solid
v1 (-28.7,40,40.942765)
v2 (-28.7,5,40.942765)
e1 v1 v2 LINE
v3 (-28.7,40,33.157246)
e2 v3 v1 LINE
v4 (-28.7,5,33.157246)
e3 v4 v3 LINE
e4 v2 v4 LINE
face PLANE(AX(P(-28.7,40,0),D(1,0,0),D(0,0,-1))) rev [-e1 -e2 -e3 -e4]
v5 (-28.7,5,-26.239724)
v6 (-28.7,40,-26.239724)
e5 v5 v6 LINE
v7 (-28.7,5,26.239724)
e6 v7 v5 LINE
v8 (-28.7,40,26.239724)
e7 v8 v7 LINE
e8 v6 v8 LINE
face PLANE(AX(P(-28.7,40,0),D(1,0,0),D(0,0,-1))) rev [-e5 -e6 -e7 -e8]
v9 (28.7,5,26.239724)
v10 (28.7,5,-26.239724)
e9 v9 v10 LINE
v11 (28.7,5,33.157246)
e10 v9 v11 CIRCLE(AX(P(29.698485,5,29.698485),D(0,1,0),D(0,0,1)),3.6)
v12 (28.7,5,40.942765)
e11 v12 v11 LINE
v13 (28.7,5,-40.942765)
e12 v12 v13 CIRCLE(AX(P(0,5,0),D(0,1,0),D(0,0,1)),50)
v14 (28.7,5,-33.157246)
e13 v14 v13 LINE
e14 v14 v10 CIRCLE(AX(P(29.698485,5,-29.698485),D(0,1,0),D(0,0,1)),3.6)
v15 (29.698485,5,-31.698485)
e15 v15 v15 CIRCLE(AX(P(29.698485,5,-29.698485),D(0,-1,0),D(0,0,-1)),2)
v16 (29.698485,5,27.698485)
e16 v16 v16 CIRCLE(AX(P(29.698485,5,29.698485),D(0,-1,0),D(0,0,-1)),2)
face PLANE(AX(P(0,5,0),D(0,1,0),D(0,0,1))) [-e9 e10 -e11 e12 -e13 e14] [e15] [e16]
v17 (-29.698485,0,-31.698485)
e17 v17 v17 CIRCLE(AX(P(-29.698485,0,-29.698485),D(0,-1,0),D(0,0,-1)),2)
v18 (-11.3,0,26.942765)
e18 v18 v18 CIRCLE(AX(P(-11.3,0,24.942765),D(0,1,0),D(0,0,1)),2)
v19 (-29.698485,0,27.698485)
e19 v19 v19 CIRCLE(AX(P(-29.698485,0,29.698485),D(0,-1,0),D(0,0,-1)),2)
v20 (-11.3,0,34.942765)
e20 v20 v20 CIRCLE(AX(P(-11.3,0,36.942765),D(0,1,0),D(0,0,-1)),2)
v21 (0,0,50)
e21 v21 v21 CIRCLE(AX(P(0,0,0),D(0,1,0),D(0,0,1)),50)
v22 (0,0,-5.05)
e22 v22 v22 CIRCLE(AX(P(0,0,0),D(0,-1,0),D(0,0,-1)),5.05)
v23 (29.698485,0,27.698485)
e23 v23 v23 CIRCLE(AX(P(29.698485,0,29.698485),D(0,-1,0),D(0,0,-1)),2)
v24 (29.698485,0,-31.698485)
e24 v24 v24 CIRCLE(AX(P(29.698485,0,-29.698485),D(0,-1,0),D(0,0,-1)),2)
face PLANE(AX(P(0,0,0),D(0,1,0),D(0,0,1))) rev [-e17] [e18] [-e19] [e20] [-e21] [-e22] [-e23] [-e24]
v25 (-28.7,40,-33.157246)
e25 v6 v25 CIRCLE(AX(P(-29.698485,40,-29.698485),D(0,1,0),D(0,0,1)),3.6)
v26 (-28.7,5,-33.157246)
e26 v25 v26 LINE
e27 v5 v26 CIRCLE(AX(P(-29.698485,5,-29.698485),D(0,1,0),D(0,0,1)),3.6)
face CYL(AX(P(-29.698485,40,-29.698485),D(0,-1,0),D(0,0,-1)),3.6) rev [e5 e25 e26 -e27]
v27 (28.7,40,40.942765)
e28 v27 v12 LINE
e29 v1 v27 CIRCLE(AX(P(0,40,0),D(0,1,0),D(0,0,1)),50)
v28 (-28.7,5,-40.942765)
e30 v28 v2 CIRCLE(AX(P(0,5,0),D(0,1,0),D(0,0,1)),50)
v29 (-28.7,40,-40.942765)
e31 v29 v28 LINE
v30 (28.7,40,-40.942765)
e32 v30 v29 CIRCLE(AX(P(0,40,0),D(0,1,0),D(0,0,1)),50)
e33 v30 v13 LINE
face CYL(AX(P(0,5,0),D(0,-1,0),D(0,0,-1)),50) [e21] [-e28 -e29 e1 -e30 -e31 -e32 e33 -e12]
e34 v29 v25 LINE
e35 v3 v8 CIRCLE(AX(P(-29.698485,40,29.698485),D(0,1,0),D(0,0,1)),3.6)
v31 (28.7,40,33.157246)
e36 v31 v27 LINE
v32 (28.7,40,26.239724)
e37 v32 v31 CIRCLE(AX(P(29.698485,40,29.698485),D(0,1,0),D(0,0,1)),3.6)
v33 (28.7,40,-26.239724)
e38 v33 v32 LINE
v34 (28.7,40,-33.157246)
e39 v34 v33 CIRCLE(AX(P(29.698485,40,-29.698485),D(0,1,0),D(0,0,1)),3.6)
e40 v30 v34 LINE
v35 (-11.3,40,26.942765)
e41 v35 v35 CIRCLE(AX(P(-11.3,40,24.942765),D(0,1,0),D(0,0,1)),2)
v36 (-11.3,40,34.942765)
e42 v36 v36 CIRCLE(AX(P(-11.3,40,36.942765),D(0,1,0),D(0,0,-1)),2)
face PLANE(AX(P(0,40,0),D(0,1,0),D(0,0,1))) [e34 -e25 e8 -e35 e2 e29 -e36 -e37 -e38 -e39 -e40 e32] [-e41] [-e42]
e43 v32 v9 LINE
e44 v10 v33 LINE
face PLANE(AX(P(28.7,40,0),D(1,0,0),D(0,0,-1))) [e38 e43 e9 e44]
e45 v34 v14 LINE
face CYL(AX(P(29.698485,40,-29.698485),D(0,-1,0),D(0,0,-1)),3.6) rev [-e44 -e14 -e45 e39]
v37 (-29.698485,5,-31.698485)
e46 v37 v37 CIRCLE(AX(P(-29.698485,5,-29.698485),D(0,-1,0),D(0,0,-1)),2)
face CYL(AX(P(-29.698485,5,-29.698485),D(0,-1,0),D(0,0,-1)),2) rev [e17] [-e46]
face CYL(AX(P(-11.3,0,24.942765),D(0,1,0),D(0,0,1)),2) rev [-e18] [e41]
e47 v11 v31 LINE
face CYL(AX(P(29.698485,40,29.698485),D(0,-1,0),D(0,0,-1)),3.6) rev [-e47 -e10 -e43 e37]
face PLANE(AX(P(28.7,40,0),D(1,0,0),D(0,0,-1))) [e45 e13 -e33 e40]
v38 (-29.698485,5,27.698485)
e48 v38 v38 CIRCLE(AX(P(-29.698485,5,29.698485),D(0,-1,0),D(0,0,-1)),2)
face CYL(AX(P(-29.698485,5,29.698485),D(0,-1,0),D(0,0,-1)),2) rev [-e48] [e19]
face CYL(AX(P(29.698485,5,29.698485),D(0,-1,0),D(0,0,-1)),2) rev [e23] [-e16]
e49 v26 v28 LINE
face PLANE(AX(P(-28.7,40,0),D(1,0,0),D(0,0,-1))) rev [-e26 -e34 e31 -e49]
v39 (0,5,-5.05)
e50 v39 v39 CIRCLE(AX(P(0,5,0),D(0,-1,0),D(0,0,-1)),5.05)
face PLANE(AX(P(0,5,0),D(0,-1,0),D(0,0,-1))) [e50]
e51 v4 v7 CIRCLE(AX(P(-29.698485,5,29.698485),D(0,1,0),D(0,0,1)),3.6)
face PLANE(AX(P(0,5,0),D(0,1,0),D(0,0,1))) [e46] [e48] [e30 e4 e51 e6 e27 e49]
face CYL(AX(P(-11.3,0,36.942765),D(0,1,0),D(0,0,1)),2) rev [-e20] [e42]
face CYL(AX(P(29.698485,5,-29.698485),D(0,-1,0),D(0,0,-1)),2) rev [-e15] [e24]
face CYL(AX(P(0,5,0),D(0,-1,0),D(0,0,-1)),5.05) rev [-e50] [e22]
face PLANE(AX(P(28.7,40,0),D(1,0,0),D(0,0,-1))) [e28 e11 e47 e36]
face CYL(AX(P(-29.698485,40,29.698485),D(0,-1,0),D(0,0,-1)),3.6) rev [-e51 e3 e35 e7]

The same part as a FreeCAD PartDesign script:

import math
import FreeCAD as App
import Part
import Sketcher

V = App.Vector
Q = App.Units.Quantity

doc = App.newDocument("Part")
body = doc.addObject("PartDesign::Body", "Body")

# Sketch on XZ plane
sketch1 = body.newObject("Sketcher::SketchObject", "Sketch")
sketch1.AttachmentSupport = (doc.getObject("XZ_Plane"), [""])
sketch1.MapMode = "FlatFace"
sketch1.addGeometry(Part.Circle(V(0, 0, 0), V(0, 0, 1), 50), False)
sketch1.addConstraint(Sketcher.Constraint("Coincident", 0, 3, -1, 1))
sketch1.addConstraint(Sketcher.Constraint("Diameter", 0, Q("100 mm")))
pad1 = body.newObject("PartDesign::Pad", "Pad")
pad1.Profile = sketch1
pad1.Length = 5
pad1.Reversed = True

# Sketch on XZ plane
sketch2 = body.newObject("Sketcher::SketchObject", "Sketch001")
sketch2.AttachmentSupport = (doc.getObject("XZ_Plane"), [""])
sketch2.MapMode = "FlatFace"
sketch2.addGeometry(Part.ArcOfCircle(Part.Circle(V(0, 0, 0), V(0, 0, 1), 50), math.radians(-125), math.radians(-55)), False)
sketch2.addGeometry(Part.LineSegment(V(-29, -41, 0), V(-29, 41, 0)), False)
sketch2.addGeometry(Part.ArcOfCircle(Part.Circle(V(0, 0, 0), V(0, 0, 1), 50), math.radians(55), math.radians(125)), False)
sketch2.addGeometry(Part.LineSegment(V(29, 41, 0), V(29, -41, 0)), False)
sketch2.addConstraint(Sketcher.Constraint("Coincident", 0, 1, 1, 1))
sketch2.addConstraint(Sketcher.Constraint("Coincident", 1, 2, 2, 2))
sketch2.addConstraint(Sketcher.Constraint("Coincident", 2, 1, 3, 1))
sketch2.addConstraint(Sketcher.Constraint("Coincident", 3, 2, 0, 2))
sketch2.addConstraint(Sketcher.Constraint("Vertical", 1))
sketch2.addConstraint(Sketcher.Constraint("Vertical", 3))
sketch2.addConstraint(Sketcher.Constraint("Coincident", 0, 3, -1, 1))
sketch2.addConstraint(Sketcher.Constraint("Coincident", 2, 3, -1, 1))
sketch2.addConstraint(Sketcher.Constraint("Equal", 0, 2))
sketch2.addConstraint(Sketcher.Constraint("Horizontal", 1, 2, 2, 1))
sketch2.addConstraint(Sketcher.Constraint("Radius", 0, Q("50 mm")))
sketch2.addConstraint(Sketcher.Constraint("DistanceX", 0, 1, -1, 1, Q("28.7 mm")))
pad2 = body.newObject("PartDesign::Pad", "Pad001")
pad2.Profile = sketch2
pad2.Length = 40
pad2.Reversed = True

# Sketch on XZ plane
sketch3 = body.newObject("Sketcher::SketchObject", "Sketch002")
sketch3.AttachmentSupport = (doc.getObject("XZ_Plane"), [""])
sketch3.MapMode = "FlatFace"
sketch3.AttachmentOffset = App.Placement(V(0, 0, -40), App.Rotation())
sketch3.addGeometry(Part.Circle(V(-11.3, 24.9, 0), V(0, 0, 1), 2), False)
sketch3.addGeometry(Part.Circle(V(-11.3, 36.9, 0), V(0, 0, 1), 2), False)
sketch3.addConstraint(Sketcher.Constraint("Equal", 0, 1))
sketch3.addConstraint(Sketcher.Constraint("Vertical", 0, 3, 1, 3))
sketch3.addConstraint(Sketcher.Constraint("Diameter", 0, Q("4 mm")))
sketch3.addConstraint(Sketcher.Constraint("DistanceY", 0, 3, 1, 3, Q("12 mm")))
sketch3.addConstraint(Sketcher.Constraint("DistanceX", 0, 3, -1, 1, Q("11.3 mm")))
sketch3.addConstraint(Sketcher.Constraint("DistanceY", -1, 1, 0, 3, Q("24.942765 mm")))
pocket1 = body.newObject("PartDesign::Pocket", "Pocket")
pocket1.Profile = sketch3
pocket1.Type = "ThroughAll"
pocket1.Reversed = True

# Sketch on XZ plane
sketch4 = body.newObject("Sketcher::SketchObject", "Sketch003")
sketch4.AttachmentSupport = (doc.getObject("XZ_Plane"), [""])
sketch4.MapMode = "FlatFace"
sketch4.addGeometry(Part.Circle(V(-29.7, 29.7, 0), V(0, 0, 1), 2), False)
sketch4.addGeometry(Part.Circle(V(29.7, 29.7, 0), V(0, 0, 1), 2), False)
sketch4.addGeometry(Part.Circle(V(29.7, -29.7, 0), V(0, 0, 1), 2), False)
sketch4.addGeometry(Part.Circle(V(-29.7, -29.7, 0), V(0, 0, 1), 2), False)
sketch4.addGeometry(Part.Circle(V(0, 0, 0), V(0, 0, 1), 5), False)
sketch4.addConstraint(Sketcher.Constraint("Coincident", 4, 3, -1, 1))
sketch4.addConstraint(Sketcher.Constraint("Equal", 0, 1))
sketch4.addConstraint(Sketcher.Constraint("Equal", 1, 2))
sketch4.addConstraint(Sketcher.Constraint("Equal", 2, 3))
sketch4.addConstraint(Sketcher.Constraint("Symmetric", 0, 3, 2, 3, -1, 1))
sketch4.addConstraint(Sketcher.Constraint("Symmetric", 1, 3, 3, 3, -1, 1))
sketch4.addConstraint(Sketcher.Constraint("Symmetric", 0, 3, 1, 3, -2))
sketch4.addConstraint(Sketcher.Constraint("Diameter", 0, Q("4 mm")))
sketch4.addConstraint(Sketcher.Constraint("Diameter", 4, Q("10.1 mm")))
sketch4.addConstraint(Sketcher.Constraint("DistanceX", 0, 3, 1, 3, Q("59.39697 mm")))
sketch4.addConstraint(Sketcher.Constraint("DistanceY", 2, 3, 1, 3, Q("59.39697 mm")))
pocket2 = body.newObject("PartDesign::Pocket", "Pocket001")
pocket2.Profile = sketch4
pocket2.Length = 5

# Sketch on XZ plane
sketch5 = body.newObject("Sketcher::SketchObject", "Sketch004")
sketch5.AttachmentSupport = (doc.getObject("XZ_Plane"), [""])
sketch5.MapMode = "FlatFace"
sketch5.addGeometry(Part.Circle(V(-29.7, 29.7, 0), V(0, 0, 1), 2), False)
sketch5.addGeometry(Part.Circle(V(-29.7, -29.7, 0), V(0, 0, 1), 2), False)
sketch5.addGeometry(Part.Circle(V(29.7, -29.7, 0), V(0, 0, 1), 2), False)
sketch5.addGeometry(Part.Circle(V(29.7, 29.7, 0), V(0, 0, 1), 2), False)
sketch5.addConstraint(Sketcher.Constraint("Equal", 0, 1))
sketch5.addConstraint(Sketcher.Constraint("Equal", 1, 2))
sketch5.addConstraint(Sketcher.Constraint("Equal", 2, 3))
sketch5.addConstraint(Sketcher.Constraint("Symmetric", 0, 3, 2, 3, -1, 1))
sketch5.addConstraint(Sketcher.Constraint("Symmetric", 1, 3, 3, 3, -1, 1))
sketch5.addConstraint(Sketcher.Constraint("Symmetric", 1, 3, 2, 3, -2))
sketch5.addConstraint(Sketcher.Constraint("Diameter", 0, Q("4 mm")))
sketch5.addConstraint(Sketcher.Constraint("DistanceY", 1, 3, 0, 3, Q("59.39697 mm")))
sketch5.addConstraint(Sketcher.Constraint("DistanceX", 1, 3, 2, 3, Q("59.39697 mm")))
pocket3 = body.newObject("PartDesign::Pocket", "Pocket002")
pocket3.Profile = sketch5
pocket3.Type = "ThroughAll"

# Sketch on XZ plane
sketch6 = body.newObject("Sketcher::SketchObject", "Sketch005")
sketch6.AttachmentSupport = (doc.getObject("XZ_Plane"), [""])
sketch6.MapMode = "FlatFace"
sketch6.AttachmentOffset = App.Placement(V(0, 0, -5), App.Rotation())
sketch6.addGeometry(Part.Circle(V(29.7, 29.7, 0), V(0, 0, 1), 3.6), False)
sketch6.addGeometry(Part.Circle(V(-29.7, 29.7, 0), V(0, 0, 1), 3.6), False)
sketch6.addGeometry(Part.Circle(V(-29.7, -29.7, 0), V(0, 0, 1), 3.6), False)
sketch6.addGeometry(Part.Circle(V(29.7, -29.7, 0), V(0, 0, 1), 3.6), False)
sketch6.addConstraint(Sketcher.Constraint("Equal", 0, 1))
sketch6.addConstraint(Sketcher.Constraint("Equal", 1, 2))
sketch6.addConstraint(Sketcher.Constraint("Equal", 2, 3))
sketch6.addConstraint(Sketcher.Constraint("Symmetric", 0, 3, 2, 3, -1, 1))
sketch6.addConstraint(Sketcher.Constraint("Symmetric", 1, 3, 3, 3, -1, 1))
sketch6.addConstraint(Sketcher.Constraint("Symmetric", 0, 3, 1, 3, -2))
sketch6.addConstraint(Sketcher.Constraint("Diameter", 0, Q("7.2 mm")))
sketch6.addConstraint(Sketcher.Constraint("DistanceX", 1, 3, 0, 3, Q("59.39697 mm")))
sketch6.addConstraint(Sketcher.Constraint("DistanceY", 2, 3, 1, 3, Q("59.39697 mm")))
pocket4 = body.newObject("PartDesign::Pocket", "Pocket003")
pocket4.Profile = sketch6
pocket4.Type = "ThroughAll"

doc.recompute()
